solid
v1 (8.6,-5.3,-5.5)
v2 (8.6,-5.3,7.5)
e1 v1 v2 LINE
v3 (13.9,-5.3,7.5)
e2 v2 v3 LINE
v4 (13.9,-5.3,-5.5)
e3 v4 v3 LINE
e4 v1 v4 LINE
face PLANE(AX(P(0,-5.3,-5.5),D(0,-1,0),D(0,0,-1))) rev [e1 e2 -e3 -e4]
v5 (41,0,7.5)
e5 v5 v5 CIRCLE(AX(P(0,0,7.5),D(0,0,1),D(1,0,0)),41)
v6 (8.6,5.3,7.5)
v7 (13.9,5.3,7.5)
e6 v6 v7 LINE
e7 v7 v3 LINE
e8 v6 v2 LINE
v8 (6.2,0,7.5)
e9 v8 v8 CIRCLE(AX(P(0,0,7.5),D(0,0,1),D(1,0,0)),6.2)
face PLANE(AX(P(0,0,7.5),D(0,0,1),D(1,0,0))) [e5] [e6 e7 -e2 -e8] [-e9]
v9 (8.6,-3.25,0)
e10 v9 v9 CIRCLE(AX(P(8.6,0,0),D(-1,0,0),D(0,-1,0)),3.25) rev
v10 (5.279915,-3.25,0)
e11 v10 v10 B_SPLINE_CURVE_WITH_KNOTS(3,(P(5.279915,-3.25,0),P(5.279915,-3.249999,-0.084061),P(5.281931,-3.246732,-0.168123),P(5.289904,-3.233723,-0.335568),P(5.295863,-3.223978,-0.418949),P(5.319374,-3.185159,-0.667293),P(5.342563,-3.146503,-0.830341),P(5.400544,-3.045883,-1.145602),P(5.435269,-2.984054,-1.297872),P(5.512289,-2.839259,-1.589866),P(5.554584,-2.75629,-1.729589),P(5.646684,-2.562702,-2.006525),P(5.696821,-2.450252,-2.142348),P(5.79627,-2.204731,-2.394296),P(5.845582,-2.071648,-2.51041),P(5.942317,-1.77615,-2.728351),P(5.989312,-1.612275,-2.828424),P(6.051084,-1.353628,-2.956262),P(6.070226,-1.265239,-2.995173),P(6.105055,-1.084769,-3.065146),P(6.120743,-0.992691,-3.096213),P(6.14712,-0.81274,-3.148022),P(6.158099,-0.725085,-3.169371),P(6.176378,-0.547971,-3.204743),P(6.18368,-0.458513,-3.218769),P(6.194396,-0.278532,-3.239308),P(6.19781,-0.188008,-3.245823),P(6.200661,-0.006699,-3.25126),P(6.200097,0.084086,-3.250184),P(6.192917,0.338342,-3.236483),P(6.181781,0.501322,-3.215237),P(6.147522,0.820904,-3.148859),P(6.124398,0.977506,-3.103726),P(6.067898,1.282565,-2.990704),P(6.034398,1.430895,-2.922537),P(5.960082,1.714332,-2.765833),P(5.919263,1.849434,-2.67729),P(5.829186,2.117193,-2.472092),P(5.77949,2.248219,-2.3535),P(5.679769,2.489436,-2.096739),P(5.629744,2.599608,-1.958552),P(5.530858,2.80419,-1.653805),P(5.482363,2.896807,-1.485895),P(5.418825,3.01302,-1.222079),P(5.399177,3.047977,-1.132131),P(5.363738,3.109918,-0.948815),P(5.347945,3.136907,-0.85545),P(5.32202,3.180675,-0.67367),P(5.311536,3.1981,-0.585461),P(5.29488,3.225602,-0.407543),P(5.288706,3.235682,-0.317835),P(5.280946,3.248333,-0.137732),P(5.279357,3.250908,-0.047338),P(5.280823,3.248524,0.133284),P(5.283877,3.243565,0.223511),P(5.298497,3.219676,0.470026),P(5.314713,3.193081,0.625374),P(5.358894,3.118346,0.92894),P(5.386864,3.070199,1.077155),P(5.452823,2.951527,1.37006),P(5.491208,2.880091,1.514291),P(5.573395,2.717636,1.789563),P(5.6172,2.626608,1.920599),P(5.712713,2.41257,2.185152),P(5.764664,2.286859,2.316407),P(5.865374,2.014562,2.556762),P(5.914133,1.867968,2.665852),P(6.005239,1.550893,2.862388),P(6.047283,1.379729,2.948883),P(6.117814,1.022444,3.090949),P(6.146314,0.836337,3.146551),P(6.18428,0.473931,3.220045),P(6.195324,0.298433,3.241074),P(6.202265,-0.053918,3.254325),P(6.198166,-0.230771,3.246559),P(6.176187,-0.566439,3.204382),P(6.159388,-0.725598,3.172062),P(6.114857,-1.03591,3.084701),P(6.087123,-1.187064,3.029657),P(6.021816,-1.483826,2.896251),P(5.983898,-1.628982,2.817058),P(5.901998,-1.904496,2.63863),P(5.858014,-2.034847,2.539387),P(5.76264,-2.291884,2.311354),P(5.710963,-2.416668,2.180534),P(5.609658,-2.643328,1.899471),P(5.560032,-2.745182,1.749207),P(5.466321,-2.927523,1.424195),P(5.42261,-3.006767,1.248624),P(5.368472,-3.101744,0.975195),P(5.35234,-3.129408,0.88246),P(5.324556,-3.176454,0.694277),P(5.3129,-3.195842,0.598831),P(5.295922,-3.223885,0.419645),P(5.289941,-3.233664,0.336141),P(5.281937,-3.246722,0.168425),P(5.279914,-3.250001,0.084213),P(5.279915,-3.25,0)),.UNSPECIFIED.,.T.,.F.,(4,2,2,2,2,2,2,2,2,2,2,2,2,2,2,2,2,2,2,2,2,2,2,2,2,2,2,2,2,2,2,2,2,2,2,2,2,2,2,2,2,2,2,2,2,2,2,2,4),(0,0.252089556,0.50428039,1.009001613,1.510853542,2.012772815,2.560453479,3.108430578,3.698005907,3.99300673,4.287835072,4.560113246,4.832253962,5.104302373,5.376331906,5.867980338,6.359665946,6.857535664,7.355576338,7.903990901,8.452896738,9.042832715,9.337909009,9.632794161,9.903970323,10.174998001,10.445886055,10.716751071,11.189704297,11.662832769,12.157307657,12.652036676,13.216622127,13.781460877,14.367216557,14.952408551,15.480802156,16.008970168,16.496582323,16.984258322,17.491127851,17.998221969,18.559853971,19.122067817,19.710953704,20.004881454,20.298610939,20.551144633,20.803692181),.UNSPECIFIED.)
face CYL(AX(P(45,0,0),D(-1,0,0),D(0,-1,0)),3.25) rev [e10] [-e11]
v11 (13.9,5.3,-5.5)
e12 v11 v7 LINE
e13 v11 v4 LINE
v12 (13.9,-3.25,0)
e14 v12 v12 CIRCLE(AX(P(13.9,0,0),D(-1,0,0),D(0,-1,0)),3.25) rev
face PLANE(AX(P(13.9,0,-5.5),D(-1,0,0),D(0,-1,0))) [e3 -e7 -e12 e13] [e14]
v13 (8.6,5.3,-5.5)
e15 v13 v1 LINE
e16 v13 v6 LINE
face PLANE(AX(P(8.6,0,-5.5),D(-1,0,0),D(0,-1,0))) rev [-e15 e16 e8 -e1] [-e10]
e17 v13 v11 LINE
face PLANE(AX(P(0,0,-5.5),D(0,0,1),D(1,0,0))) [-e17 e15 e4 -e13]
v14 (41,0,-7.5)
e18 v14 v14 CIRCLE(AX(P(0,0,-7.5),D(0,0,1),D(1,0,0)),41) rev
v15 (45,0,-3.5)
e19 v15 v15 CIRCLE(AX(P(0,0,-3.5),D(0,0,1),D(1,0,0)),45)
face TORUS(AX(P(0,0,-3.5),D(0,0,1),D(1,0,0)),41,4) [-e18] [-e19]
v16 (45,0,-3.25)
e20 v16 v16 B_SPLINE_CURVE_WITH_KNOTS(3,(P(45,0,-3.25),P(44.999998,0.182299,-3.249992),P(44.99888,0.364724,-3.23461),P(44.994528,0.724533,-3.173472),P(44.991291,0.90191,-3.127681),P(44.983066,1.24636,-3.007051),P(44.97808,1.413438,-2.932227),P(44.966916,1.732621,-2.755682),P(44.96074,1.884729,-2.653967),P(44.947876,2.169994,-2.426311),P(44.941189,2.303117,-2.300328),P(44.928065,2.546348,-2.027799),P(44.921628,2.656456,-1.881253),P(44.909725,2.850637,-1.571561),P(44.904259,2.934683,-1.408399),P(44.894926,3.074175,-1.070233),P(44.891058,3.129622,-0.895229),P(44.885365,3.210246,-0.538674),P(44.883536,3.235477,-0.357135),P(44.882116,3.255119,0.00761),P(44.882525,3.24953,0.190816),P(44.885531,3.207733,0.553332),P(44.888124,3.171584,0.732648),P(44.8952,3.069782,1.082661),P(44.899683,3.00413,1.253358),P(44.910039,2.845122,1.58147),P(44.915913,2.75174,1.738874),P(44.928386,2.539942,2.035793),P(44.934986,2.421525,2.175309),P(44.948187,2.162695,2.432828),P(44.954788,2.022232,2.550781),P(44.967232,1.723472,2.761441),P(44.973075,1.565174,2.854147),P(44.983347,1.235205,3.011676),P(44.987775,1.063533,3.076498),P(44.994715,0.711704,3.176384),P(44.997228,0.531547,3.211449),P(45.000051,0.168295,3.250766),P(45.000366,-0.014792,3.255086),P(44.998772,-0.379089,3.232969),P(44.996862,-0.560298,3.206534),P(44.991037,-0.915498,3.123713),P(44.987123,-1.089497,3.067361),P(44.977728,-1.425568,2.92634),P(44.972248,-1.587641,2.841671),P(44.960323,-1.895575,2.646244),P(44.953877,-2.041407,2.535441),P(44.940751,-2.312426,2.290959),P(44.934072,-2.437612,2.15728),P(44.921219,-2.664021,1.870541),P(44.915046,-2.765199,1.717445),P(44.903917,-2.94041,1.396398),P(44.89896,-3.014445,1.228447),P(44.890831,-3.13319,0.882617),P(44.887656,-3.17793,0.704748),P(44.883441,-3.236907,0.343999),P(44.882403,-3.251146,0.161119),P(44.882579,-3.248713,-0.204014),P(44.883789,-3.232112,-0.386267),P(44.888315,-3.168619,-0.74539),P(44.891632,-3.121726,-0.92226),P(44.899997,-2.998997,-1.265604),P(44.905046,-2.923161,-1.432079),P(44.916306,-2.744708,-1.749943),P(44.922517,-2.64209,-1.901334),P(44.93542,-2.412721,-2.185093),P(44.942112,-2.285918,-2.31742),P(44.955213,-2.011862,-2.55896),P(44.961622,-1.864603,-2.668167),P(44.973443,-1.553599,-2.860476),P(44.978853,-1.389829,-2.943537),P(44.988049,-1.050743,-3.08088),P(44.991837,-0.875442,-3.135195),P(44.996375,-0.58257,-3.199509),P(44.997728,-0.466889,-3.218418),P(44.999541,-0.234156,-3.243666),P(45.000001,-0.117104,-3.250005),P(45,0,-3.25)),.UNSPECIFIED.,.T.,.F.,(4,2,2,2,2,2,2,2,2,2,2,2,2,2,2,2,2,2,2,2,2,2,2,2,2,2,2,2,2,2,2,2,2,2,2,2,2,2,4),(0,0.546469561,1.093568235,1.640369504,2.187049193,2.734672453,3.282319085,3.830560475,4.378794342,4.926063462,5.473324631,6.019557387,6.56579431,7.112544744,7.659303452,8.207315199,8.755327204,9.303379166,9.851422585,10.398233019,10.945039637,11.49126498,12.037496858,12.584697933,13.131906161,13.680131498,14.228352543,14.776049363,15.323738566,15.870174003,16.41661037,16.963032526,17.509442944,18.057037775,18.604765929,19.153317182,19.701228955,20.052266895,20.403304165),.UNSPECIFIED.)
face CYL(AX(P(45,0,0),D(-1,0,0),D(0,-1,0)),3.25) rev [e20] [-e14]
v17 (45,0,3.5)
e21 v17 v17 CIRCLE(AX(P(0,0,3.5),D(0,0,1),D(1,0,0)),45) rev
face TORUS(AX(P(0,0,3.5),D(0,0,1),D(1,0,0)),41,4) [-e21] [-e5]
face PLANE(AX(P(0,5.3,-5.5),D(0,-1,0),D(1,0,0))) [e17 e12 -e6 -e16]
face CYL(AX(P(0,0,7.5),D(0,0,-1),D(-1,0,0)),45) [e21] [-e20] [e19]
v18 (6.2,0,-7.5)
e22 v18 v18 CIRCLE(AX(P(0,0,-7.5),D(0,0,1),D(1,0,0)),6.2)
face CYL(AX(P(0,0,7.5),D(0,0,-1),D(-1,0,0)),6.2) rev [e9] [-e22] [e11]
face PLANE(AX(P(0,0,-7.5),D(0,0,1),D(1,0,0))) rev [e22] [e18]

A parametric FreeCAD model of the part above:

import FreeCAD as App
import Part
import Sketcher
from FreeCAD import Vector
Q = App.Units.Quantity


def edges_at(feature, points):
    """Names of the edges that pass closest to the given points."""
    edges = feature.Shape.Edges
    near = lambda p: min(range(len(edges)), key=lambda i: edges[i].distToShape(Part.Vertex(*p))[0])
    return sorted({f"Edge{near(p) + 1}" for p in points})

doc = App.newDocument("Part")
params = doc.addObject("Spreadsheet::Sheet", "Params")
for row, (alias, value) in enumerate([
    ("sketch1_diameter", "90 mm"),
    ("sketch1_diameter2", "12.4 mm"),
    ("pad1_length", "15 mm"),
    ("sketch2_width", "5.3 mm"),
    ("sketch2_height", "10.6 mm"),
    ("pocket1_length", "13 mm"),
    ("sketch3_diameter", "6.5 mm"),
    ("pocket2_length", "37.4 mm"),
    ("pocket2_length2", "13 mm"),
    ("fillet_radius", "4 mm"),
], start=1):
    params.set(f"A{row}", alias)
    params.set(f"B{row}", "=" + value)
    params.setAlias(f"B{row}", alias)

body = doc.addObject("PartDesign::Body", "Body")

# Sketch on XY plane
sketch1 = doc.addObject("Sketcher::SketchObject", "Sketch")
body.addObject(sketch1)
sketch1.AttachmentSupport = (doc.XY_Plane, [""])
sketch1.MapMode = "FlatFace"
sketch1.addGeometry([
    Part.Circle(Vector(0, 0, 0), Vector(0, 0, 1), 45),
    Part.Circle(Vector(0, 0, 0), Vector(0, 0, 1), 6),
], False)
sketch1.addConstraint([
    Sketcher.Constraint("Coincident", 0, 3, -1, 1),
    Sketcher.Constraint("Coincident", 1, 3, -1, 1),
    Sketcher.Constraint("Diameter", 0, Q("90 mm")),
    Sketcher.Constraint("Diameter", 1, Q("12.4 mm")),
])
sketch1.setExpression("Constraints[2]", "Params.sketch1_diameter")
sketch1.setExpression("Constraints[3]", "Params.sketch1_diameter2")
pad1 = doc.addObject("PartDesign::Pad", "Pad")
body.addObject(pad1)
pad1.Profile = sketch1
pad1.setExpression("Length", "Params.pad1_length")
pad1.Midplane = True

# Sketch on XY plane
sketch2 = doc.addObject("Sketcher::SketchObject", "Sketch001")
body.addObject(sketch2)
sketch2.AttachmentSupport = (doc.XY_Plane, [""])
sketch2.MapMode = "FlatFace"
sketch2.AttachmentOffset = App.Placement(Vector(0, 0, 7.5), App.Rotation())
sketch2.addGeometry([
    Part.LineSegment(Vector(9, 5, 0), Vector(9, -5, 0)),
    Part.LineSegment(Vector(9, -5, 0), Vector(14, -5, 0)),
    Part.LineSegment(Vector(14, -5, 0), Vector(14, 5, 0)),
    Part.LineSegment(Vector(14, 5, 0), Vector(9, 5, 0)),
], False)
sketch2.addConstraint([
    Sketcher.Constraint("Coincident", 0, 2, 1, 1),
    Sketcher.Constraint("Coincident", 1, 2, 2, 1),
    Sketcher.Constraint("Coincident", 2, 2, 3, 1),
    Sketcher.Constraint("Coincident", 3, 2, 0, 1),
    Sketcher.Constraint("Vertical", 0),
    Sketcher.Constraint("Horizontal", 1),
    Sketcher.Constraint("Vertical", 2),
    Sketcher.Constraint("Horizontal", 3),
    Sketcher.Constraint("DistanceX", 1, 1, 1, 2, Q("5.3 mm")),
    Sketcher.Constraint("DistanceY", 0, 2, 0, 1, Q("10.6 mm")),
    Sketcher.Constraint("DistanceX", -1, 1, 0, 2, Q("8.6 mm")),
    Sketcher.Constraint("DistanceY", 0, 2, -1, 1, Q("5.3 mm")),
])
sketch2.setExpression("Constraints[8]", "Params.sketch2_width")
sketch2.setExpression("Constraints[9]", "Params.sketch2_height")
pocket1 = doc.addObject("PartDesign::Pocket", "Pocket")
body.addObject(pocket1)
pocket1.Profile = sketch2
pocket1.setExpression("Length", "Params.pocket1_length")

# Sketch on YZ plane
sketch3 = doc.addObject("Sketcher::SketchObject", "Sketch002")
body.addObject(sketch3)
sketch3.AttachmentSupport = (doc.YZ_Plane, [""])
sketch3.MapMode = "FlatFace"
sketch3.AttachmentOffset = App.Placement(Vector(0, 0, 8.6), App.Rotation())
sketch3.addGeometry(Part.Circle(Vector(0, 0, 0), Vector(0, 0, 1), 3.2), False)
sketch3.addConstraint([
    Sketcher.Constraint("Coincident", 0, 3, -1, 1),
    Sketcher.Constraint("Diameter", 0, Q("6.5 mm")),
])
sketch3.setExpression("Constraints[1]", "Params.sketch3_diameter")
pocket2 = doc.addObject("PartDesign::Pocket", "Pocket001")
body.addObject(pocket2)
pocket2.Profile = sketch3
pocket2.Type = "TwoLengths"
pocket2.setExpression("Length", "Params.pocket2_length")
pocket2.setExpression("Length2", "Params.pocket2_length2")
pocket2.Reversed = True
doc.recompute()

fillet = doc.addObject("PartDesign::Fillet", "Fillet")
body.addObject(fillet)
fillet.Base = (pocket2, edges_at(pocket2, [(-45, 0, -7.5), (-45, 0, 7.5)]))
fillet.setExpression("Radius", "Params.fillet_radius")

doc.recompute()
